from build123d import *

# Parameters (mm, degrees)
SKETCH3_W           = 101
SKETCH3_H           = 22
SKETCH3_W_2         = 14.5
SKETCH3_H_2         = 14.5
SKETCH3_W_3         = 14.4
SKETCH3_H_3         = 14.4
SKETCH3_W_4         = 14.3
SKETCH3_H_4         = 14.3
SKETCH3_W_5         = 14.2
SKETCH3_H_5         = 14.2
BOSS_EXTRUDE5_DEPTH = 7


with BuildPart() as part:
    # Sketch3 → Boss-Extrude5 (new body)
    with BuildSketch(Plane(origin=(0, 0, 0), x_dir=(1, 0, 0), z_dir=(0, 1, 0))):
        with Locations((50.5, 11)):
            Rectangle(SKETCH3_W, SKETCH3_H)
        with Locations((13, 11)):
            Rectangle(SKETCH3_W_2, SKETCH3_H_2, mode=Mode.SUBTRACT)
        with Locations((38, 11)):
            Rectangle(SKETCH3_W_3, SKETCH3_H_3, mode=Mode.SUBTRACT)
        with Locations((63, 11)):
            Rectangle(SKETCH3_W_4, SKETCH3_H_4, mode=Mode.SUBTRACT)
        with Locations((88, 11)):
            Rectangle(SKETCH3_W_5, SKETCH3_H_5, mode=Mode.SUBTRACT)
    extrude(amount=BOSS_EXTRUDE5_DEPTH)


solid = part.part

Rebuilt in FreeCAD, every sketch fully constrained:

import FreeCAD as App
import Part
import Sketcher

V = App.Vector

doc = App.newDocument("Part")
body = doc.addObject("PartDesign::Body", "Body")

# Sketch on XZ plane
sketch1 = body.newObject("Sketcher::SketchObject", "Sketch")
sketch1.AttachmentSupport = (doc.getObject("XZ_Plane"), [""])
sketch1.MapMode = "FlatFace"
sketch1.addGeometry([
    Part.LineSegment(V(0, -22, 0), V(0, 0, 0)),  # 0
    Part.LineSegment(V(0, 0, 0), V(101, 0, 0)),  # 1
    Part.LineSegment(V(101, 0, 0), V(101, -22, 0)),  # 2
    Part.LineSegment(V(101, -22, 0), V(0, -22, 0)),  # 3
    Part.LineSegment(V(20, -4, 0), V(6, -4, 0)),  # 4
    Part.LineSegment(V(6, -4, 0), V(6, -18, 0)),  # 5
    Part.LineSegment(V(6, -18, 0), V(20, -18, 0)),  # 6
    Part.LineSegment(V(20, -18, 0), V(20, -4, 0)),  # 7
    Part.LineSegment(V(45, -4, 0), V(31, -4, 0)),  # 8
    Part.LineSegment(V(31, -4, 0), V(31, -18, 0)),  # 9
    Part.LineSegment(V(31, -18, 0), V(45, -18, 0)),  # 10
    Part.LineSegment(V(45, -18, 0), V(45, -4, 0)),  # 11
    Part.LineSegment(V(70, -4, 0), V(56, -4, 0)),  # 12
    Part.LineSegment(V(56, -4, 0), V(56, -18, 0)),  # 13
    Part.LineSegment(V(56, -18, 0), V(70, -18, 0)),  # 14
    Part.LineSegment(V(70, -18, 0), V(70, -4, 0)),  # 15
    Part.LineSegment(V(95, -4, 0), V(81, -4, 0)),  # 16
    Part.LineSegment(V(81, -4, 0), V(81, -18, 0)),  # 17
    Part.LineSegment(V(81, -18, 0), V(95, -18, 0)),  # 18
    Part.LineSegment(V(95, -18, 0), V(95, -4, 0)),  # 19
], False)
sketch1.addConstraint([
    Sketcher.Constraint("Coincident", 0, 2, 1, 1),
    Sketcher.Constraint("Coincident", 1, 2, 2, 1),
    Sketcher.Constraint("Coincident", 2, 2, 3, 1),
    Sketcher.Constraint("Coincident", 3, 2, 0, 1),
    Sketcher.Constraint("Coincident", 4, 2, 5, 1),
    Sketcher.Constraint("Coincident", 5, 2, 6, 1),
    Sketcher.Constraint("Coincident", 6, 2, 7, 1),
    Sketcher.Constraint("Coincident", 7, 2, 4, 1),
    Sketcher.Constraint("Coincident", 8, 2, 9, 1),
    Sketcher.Constraint("Coincident", 9, 2, 10, 1),
    Sketcher.Constraint("Coincident", 10, 2, 11, 1),
    Sketcher.Constraint("Coincident", 11, 2, 8, 1),
    Sketcher.Constraint("Coincident", 12, 2, 13, 1),
    Sketcher.Constraint("Coincident", 13, 2, 14, 1),
    Sketcher.Constraint("Coincident", 14, 2, 15, 1),
    Sketcher.Constraint("Coincident", 15, 2, 12, 1),
    Sketcher.Constraint("Coincident", 16, 2, 17, 1),
    Sketcher.Constraint("Coincident", 17, 2, 18, 1),
    Sketcher.Constraint("Coincident", 18, 2, 19, 1),
    Sketcher.Constraint("Coincident", 19, 2, 16, 1),
    Sketcher.Constraint("Vertical", 0),
    Sketcher.Constraint("Horizontal", 1),
    Sketcher.Constraint("Vertical", 2),
    Sketcher.Constraint("Horizontal", 3),
    Sketcher.Constraint("Horizontal", 4),
    Sketcher.Constraint("Vertical", 5),
    Sketcher.Constraint("Horizontal", 6),
    Sketcher.Constraint("Vertical", 7),
    Sketcher.Constraint("Horizontal", 8),
    Sketcher.Constraint("Vertical", 9),
    Sketcher.Constraint("Horizontal", 10),
    Sketcher.Constraint("Vertical", 11),
    Sketcher.Constraint("Horizontal", 12),
    Sketcher.Constraint("Vertical", 13),
    Sketcher.Constraint("Horizontal", 14),
    Sketcher.Constraint("Vertical", 15),
    Sketcher.Constraint("Horizontal", 16),
    Sketcher.Constraint("Vertical", 17),
    Sketcher.Constraint("Horizontal", 18),
    Sketcher.Constraint("Vertical", 19),
    Sketcher.Constraint("Coincident", 0, 2, -1, 1),
    Sketcher.Constraint("Equal", 6, 5),
    Sketcher.Constraint("Equal", 10, 9),
    Sketcher.Constraint("Equal", 14, 13),
    Sketcher.Constraint("Equal", 18, 17),
    Sketcher.Constraint("DistanceX", 1, 1, 1, 2, 101.0),
    Sketcher.Constraint("DistanceY", 0, 1, 0, 2, 22.0),
    Sketcher.Constraint("DistanceX", 4, 2, 4, 1, 14.5),
    Sketcher.Constraint("DistanceX", 8, 2, 8, 1, 14.4),
    Sketcher.Constraint("DistanceX", 12, 2, 12, 1, 14.3),
    Sketcher.Constraint("DistanceX", 16, 2, 16, 1, 14.2),
    Sketcher.Constraint("DistanceX", -1, 1, 8, 2, 30.8),
    Sketcher.Constraint("DistanceY", 8, 2, -1, 1, 3.8),
    Sketcher.Constraint("DistanceX", -1, 1, 16, 2, 80.9),
    Sketcher.Constraint("DistanceY", 16, 2, -1, 1, 3.9),
    Sketcher.Constraint("DistanceX", 7, 2, 12, 2, 35.6),
    Sketcher.Constraint("DistanceY", 12, 2, 7, 2, 0.1),
    Sketcher.Constraint("DistanceX", -1, 1, 4, 2, 5.75),
    Sketcher.Constraint("DistanceY", 4, 2, -1, 1, 3.75),
])
pad1 = body.newObject("PartDesign::Pad", "Pad")
pad1.Profile = sketch1
pad1.Length = 7
pad1.Reversed = True

doc.recompute()
